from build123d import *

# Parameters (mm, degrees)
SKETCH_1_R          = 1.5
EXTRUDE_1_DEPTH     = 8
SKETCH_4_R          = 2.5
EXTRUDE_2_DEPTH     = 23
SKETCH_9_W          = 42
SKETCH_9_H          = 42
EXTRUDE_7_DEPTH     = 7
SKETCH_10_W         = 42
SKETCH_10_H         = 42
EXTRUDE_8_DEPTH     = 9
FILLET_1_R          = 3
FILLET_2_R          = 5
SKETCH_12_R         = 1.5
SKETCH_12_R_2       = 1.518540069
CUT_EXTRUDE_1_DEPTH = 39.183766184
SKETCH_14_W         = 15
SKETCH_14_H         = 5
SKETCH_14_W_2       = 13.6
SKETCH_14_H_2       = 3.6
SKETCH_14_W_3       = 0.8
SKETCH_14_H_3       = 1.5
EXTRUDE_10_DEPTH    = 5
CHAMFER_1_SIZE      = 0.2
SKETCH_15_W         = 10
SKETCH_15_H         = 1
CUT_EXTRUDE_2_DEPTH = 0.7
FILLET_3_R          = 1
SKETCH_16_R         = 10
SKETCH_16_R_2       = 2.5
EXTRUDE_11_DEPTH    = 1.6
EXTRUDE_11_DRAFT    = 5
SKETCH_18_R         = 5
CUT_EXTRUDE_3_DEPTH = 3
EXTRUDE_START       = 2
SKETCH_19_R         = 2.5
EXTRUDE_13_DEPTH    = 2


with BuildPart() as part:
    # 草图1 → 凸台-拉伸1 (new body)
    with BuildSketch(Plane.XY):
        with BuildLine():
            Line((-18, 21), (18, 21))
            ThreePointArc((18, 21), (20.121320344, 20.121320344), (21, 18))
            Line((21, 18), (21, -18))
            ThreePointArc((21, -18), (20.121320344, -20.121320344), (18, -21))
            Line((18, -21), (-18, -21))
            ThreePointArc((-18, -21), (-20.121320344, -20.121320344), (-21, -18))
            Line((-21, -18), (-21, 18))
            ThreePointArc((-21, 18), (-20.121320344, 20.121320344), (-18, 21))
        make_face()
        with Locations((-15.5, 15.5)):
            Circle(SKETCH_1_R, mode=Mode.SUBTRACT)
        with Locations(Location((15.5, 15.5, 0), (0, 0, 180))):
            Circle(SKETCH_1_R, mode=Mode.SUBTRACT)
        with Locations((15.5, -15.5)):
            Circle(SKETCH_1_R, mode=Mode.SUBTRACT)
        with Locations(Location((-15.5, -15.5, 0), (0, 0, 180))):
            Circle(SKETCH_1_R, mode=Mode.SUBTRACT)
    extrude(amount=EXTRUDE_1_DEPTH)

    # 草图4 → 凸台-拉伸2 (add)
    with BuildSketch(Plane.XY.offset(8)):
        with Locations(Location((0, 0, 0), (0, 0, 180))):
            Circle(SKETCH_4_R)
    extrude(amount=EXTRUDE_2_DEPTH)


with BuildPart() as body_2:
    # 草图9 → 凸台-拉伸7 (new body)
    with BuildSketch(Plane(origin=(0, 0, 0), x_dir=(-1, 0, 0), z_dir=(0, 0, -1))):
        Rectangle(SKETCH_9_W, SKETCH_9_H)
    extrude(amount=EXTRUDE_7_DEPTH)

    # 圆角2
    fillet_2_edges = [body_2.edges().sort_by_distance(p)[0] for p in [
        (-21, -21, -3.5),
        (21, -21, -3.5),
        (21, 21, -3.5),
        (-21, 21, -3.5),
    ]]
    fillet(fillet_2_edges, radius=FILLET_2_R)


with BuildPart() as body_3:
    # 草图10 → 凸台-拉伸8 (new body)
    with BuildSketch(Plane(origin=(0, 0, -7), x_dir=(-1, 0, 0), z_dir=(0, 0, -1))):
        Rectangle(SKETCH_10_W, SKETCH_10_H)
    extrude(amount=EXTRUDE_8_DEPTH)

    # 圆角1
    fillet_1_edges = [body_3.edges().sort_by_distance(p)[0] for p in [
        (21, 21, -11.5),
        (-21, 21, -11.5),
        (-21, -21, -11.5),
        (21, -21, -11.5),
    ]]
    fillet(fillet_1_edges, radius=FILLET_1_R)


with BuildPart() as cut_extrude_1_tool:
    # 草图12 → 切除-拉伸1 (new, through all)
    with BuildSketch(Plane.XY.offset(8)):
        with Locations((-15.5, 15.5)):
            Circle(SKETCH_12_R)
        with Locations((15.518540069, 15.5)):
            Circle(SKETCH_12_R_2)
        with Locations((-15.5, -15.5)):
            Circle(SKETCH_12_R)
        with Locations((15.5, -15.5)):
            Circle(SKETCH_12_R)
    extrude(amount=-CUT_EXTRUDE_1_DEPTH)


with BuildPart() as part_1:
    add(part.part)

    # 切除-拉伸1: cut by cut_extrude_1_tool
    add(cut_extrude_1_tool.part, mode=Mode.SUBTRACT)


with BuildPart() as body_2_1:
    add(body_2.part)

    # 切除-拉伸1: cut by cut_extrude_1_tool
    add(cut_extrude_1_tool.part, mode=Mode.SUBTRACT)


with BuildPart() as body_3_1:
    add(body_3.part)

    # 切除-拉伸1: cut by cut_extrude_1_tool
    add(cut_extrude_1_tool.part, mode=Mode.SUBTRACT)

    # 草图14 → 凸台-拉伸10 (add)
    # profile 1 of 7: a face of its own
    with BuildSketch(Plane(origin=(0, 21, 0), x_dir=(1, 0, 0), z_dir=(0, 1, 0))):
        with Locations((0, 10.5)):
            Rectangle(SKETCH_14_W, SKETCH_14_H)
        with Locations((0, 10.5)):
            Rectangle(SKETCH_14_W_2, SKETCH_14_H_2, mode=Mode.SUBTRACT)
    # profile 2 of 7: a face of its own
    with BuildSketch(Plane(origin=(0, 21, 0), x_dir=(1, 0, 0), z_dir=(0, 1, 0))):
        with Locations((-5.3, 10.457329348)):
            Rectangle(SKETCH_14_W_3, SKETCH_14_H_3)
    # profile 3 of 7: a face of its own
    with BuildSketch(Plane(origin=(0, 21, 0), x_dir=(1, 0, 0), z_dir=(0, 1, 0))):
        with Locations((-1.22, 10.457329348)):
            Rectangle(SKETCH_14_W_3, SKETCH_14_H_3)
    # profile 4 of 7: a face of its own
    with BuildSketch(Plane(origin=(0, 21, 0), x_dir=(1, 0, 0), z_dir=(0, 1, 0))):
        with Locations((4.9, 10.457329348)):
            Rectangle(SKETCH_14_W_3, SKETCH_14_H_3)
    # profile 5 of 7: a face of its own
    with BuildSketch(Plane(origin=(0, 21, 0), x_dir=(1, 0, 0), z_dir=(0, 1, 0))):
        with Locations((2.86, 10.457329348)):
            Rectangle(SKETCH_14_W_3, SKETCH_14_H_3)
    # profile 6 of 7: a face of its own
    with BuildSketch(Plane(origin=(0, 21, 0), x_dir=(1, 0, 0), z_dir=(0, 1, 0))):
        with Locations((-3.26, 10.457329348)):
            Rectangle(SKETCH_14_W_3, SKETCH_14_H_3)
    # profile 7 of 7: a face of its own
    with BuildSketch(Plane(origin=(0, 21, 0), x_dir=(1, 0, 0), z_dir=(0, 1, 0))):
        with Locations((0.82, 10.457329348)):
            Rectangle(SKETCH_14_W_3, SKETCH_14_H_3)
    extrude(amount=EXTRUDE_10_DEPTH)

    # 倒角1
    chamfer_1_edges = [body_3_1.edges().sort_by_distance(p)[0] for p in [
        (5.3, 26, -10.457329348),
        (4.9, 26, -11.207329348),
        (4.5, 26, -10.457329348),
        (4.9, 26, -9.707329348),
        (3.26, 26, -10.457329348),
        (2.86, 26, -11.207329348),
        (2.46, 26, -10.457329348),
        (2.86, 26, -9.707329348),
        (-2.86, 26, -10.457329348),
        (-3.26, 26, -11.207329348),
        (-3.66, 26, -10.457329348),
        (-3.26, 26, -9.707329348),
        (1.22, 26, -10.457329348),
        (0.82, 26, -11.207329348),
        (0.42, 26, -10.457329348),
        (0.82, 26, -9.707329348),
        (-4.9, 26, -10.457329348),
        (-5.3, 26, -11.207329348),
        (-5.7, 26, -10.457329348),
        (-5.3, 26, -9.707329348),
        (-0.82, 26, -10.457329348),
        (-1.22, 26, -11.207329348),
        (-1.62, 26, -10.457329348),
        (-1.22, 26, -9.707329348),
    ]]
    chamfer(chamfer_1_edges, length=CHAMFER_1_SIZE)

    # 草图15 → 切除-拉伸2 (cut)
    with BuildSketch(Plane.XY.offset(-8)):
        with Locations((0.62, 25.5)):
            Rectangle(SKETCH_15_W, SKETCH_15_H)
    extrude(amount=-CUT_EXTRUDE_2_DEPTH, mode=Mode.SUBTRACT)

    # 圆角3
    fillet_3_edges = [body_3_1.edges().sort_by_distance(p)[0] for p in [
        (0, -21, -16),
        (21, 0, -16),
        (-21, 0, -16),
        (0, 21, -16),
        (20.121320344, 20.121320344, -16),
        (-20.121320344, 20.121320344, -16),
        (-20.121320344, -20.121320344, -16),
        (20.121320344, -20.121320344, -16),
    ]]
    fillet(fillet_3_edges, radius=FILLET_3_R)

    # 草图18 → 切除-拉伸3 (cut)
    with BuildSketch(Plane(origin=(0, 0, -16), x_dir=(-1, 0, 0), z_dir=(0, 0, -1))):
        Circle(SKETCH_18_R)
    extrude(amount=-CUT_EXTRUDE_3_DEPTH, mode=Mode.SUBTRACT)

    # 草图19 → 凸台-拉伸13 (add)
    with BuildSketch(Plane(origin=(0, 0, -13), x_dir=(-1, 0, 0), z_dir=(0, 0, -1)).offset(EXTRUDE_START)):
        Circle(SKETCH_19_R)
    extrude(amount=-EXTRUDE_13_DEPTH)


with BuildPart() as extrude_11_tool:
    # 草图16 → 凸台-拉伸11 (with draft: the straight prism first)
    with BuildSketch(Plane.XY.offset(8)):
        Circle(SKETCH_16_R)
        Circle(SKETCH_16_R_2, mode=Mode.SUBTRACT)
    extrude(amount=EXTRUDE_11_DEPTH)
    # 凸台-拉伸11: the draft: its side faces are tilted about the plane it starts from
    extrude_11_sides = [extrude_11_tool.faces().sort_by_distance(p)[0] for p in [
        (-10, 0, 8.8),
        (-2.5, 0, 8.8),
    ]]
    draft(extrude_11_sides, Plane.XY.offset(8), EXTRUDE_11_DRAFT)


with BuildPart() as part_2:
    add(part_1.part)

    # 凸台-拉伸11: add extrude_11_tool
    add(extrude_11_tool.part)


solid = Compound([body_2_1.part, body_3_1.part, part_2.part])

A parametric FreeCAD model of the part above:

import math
import FreeCAD as App
import Part
import Sketcher
from FreeCAD import Vector
Q = App.Units.Quantity


def edges_at(feature, points):
    """Names of the edges that pass closest to the given points."""
    edges = feature.Shape.Edges
    near = lambda p: min(range(len(edges)), key=lambda i: edges[i].distToShape(Part.Vertex(*p))[0])
    return sorted({f"Edge{near(p) + 1}" for p in points})


def faces_at(feature, points):
    """Names of the faces that lie closest to the given points."""
    faces = feature.Shape.Faces
    near = lambda p: min(range(len(faces)), key=lambda i: faces[i].distToShape(Part.Vertex(*p))[0])
    return sorted({f"Face{near(p) + 1}" for p in points})

doc = App.newDocument("Part")
body = doc.addObject("PartDesign::Body", "Body")

# Sketch on XY plane
sketch1 = body.newObject("Sketcher::SketchObject", "Sketch")
sketch1.AttachmentSupport = (doc.getObject("XY_Plane"), [""])
sketch1.MapMode = "FlatFace"
sketch1.addGeometry(Part.LineSegment(Vector(18, 21, 0), Vector(-18, 21, 0)), False)
sketch1.addGeometry(Part.ArcOfCircle(Part.Circle(Vector(-18, 18, 0), Vector(0, 0, 1), 3), math.radians(90), math.radians(180)), False)
sketch1.addGeometry(Part.LineSegment(Vector(-21, 18, 0), Vector(-21, -18, 0)), False)
sketch1.addGeometry(Part.ArcOfCircle(Part.Circle(Vector(-18, -18, 0), Vector(0, 0, 1), 3), math.radians(180), math.radians(270)), False)
sketch1.addGeometry(Part.LineSegment(Vector(-18, -21, 0), Vector(18, -21, 0)), False)
sketch1.addGeometry(Part.ArcOfCircle(Part.Circle(Vector(18, -18, 0), Vector(0, 0, 1), 3), math.radians(-90), math.radians(0)), False)
sketch1.addGeometry(Part.LineSegment(Vector(21, -18, 0), Vector(21, 18, 0)), False)
sketch1.addGeometry(Part.ArcOfCircle(Part.Circle(Vector(18, 18, 0), Vector(0, 0, 1), 3), math.radians(0), math.radians(90)), False)
sketch1.addGeometry(Part.Circle(Vector(15.5, -15.5, 0), Vector(0, 0, 1), 1.5), False)
sketch1.addGeometry(Part.Circle(Vector(-15.5, -15.5, 0), Vector(0, 0, 1), 1.5), False)
sketch1.addGeometry(Part.Circle(Vector(15.5, 15.5, 0), Vector(0, 0, 1), 1.5), False)
sketch1.addGeometry(Part.Circle(Vector(-15.5, 15.5, 0), Vector(0, 0, 1), 1.5), False)
sketch1.addConstraint(Sketcher.Constraint("Tangent", 0, 2, 1, 1))
sketch1.addConstraint(Sketcher.Constraint("Tangent", 1, 2, 2, 1))
sketch1.addConstraint(Sketcher.Constraint("Tangent", 2, 2, 3, 1))
sketch1.addConstraint(Sketcher.Constraint("Tangent", 3, 2, 4, 1))
sketch1.addConstraint(Sketcher.Constraint("Tangent", 4, 2, 5, 1))
sketch1.addConstraint(Sketcher.Constraint("Tangent", 5, 2, 6, 1))
sketch1.addConstraint(Sketcher.Constraint("Tangent", 6, 2, 7, 1))
sketch1.addConstraint(Sketcher.Constraint("Tangent", 7, 2, 0, 1))
sketch1.addConstraint(Sketcher.Constraint("Horizontal", 0))
sketch1.addConstraint(Sketcher.Constraint("Vertical", 2))
sketch1.addConstraint(Sketcher.Constraint("Horizontal", 4))
sketch1.addConstraint(Sketcher.Constraint("Vertical", 6))
sketch1.addConstraint(Sketcher.Constraint("Equal", 1, 3))
sketch1.addConstraint(Sketcher.Constraint("Equal", 3, 5))
sketch1.addConstraint(Sketcher.Constraint("Equal", 5, 7))
sketch1.addConstraint(Sketcher.Constraint("Equal", 8, 9))
sketch1.addConstraint(Sketcher.Constraint("Equal", 9, 10))
sketch1.addConstraint(Sketcher.Constraint("Equal", 10, 11))
sketch1.addConstraint(Sketcher.Constraint("Symmetric", 1, 3, 5, 3, -1, 1))
sketch1.addConstraint(Sketcher.Constraint("Symmetric", 9, 3, 10, 3, -1, 1))
sketch1.addConstraint(Sketcher.Constraint("Symmetric", 8, 3, 11, 3, -1, 1))
sketch1.addConstraint(Sketcher.Constraint("Symmetric", 8, 3, 9, 3, -2))
sketch1.addConstraint(Sketcher.Constraint("Equal", 4, 2))
sketch1.addConstraint(Sketcher.Constraint("Diameter", 8, Q("3 mm")))
sketch1.addConstraint(Sketcher.Constraint("Radius", 1, Q("3 mm")))
sketch1.addConstraint(Sketcher.Constraint("DistanceX", 0, 2, 0, 1, Q("36 mm")))
sketch1.addConstraint(Sketcher.Constraint("DistanceX", 9, 3, 8, 3, Q("31 mm")))
sketch1.addConstraint(Sketcher.Constraint("DistanceY", 8, 3, 10, 3, Q("31 mm")))
pad1 = body.newObject("PartDesign::Pad", "Pad")
pad1.Profile = sketch1
pad1.Length = 8

# Sketch on XY plane
sketch2 = body.newObject("Sketcher::SketchObject", "Sketch001")
sketch2.AttachmentSupport = (doc.getObject("XY_Plane"), [""])
sketch2.MapMode = "FlatFace"
sketch2.AttachmentOffset = App.Placement(Vector(0, 0, 8), App.Rotation())
sketch2.addGeometry(Part.Circle(Vector(0, 0, 0), Vector(0, 0, 1), 2.5), False)
sketch2.addConstraint(Sketcher.Constraint("Coincident", 0, 3, -1, 1))
sketch2.addConstraint(Sketcher.Constraint("Diameter", 0, Q("5 mm")))
pad2 = body.newObject("PartDesign::Pad", "Pad001")
pad2.Profile = sketch2
pad2.Length = 23
body2 = doc.addObject("PartDesign::Body", "Body001")

# Sketch on XY plane
sketch3 = body2.newObject("Sketcher::SketchObject", "Sketch002")
sketch3.AttachmentSupport = (doc.getObject("XY_Plane001"), [""])
sketch3.MapMode = "FlatFace"
sketch3.addGeometry(Part.LineSegment(Vector(21, 21, 0), Vector(21, -21, 0)), False)
sketch3.addGeometry(Part.LineSegment(Vector(21, -21, 0), Vector(-21, -21, 0)), False)
sketch3.addGeometry(Part.LineSegment(Vector(-21, -21, 0), Vector(-21, 21, 0)), False)
sketch3.addGeometry(Part.LineSegment(Vector(-21, 21, 0), Vector(21, 21, 0)), False)
sketch3.addConstraint(Sketcher.Constraint("Coincident", 0, 2, 1, 1))
sketch3.addConstraint(Sketcher.Constraint("Coincident", 1, 2, 2, 1))
sketch3.addConstraint(Sketcher.Constraint("Coincident", 2, 2, 3, 1))
sketch3.addConstraint(Sketcher.Constraint("Coincident", 3, 2, 0, 1))
sketch3.addConstraint(Sketcher.Constraint("Vertical", 0))
sketch3.addConstraint(Sketcher.Constraint("Horizontal", 1))
sketch3.addConstraint(Sketcher.Constraint("Vertical", 2))
sketch3.addConstraint(Sketcher.Constraint("Horizontal", 3))
sketch3.addConstraint(Sketcher.Constraint("Symmetric", 0, 2, 2, 2, -1, 1))
sketch3.addConstraint(Sketcher.Constraint("Equal", 3, 0))
sketch3.addConstraint(Sketcher.Constraint("DistanceX", 1, 2, 1, 1, Q("42 mm")))
pad3 = body2.newObject("PartDesign::Pad", "Pad002")
pad3.Profile = sketch3
pad3.Length = 7
pad3.Reversed = True
doc.recompute()

fillet = body2.newObject("PartDesign::Fillet", "Fillet")
fillet.Base = (pad3, edges_at(pad3, [
    (-21, -21, -3.5),
    (21, -21, -3.5),
    (21, 21, -3.5),
    (-21, 21, -3.5),
]))
fillet.Radius = 5
body3 = doc.addObject("PartDesign::Body", "Body002")

# Sketch on XY plane
sketch4 = body3.newObject("Sketcher::SketchObject", "Sketch003")
sketch4.AttachmentSupport = (doc.getObject("XY_Plane002"), [""])
sketch4.MapMode = "FlatFace"
sketch4.AttachmentOffset = App.Placement(Vector(0, 0, -7), App.Rotation())
sketch4.addGeometry(Part.LineSegment(Vector(21, 21, 0), Vector(21, -21, 0)), False)
sketch4.addGeometry(Part.LineSegment(Vector(21, -21, 0), Vector(-21, -21, 0)), False)
sketch4.addGeometry(Part.LineSegment(Vector(-21, -21, 0), Vector(-21, 21, 0)), False)
sketch4.addGeometry(Part.LineSegment(Vector(-21, 21, 0), Vector(21, 21, 0)), False)
sketch4.addConstraint(Sketcher.Constraint("Coincident", 0, 2, 1, 1))
sketch4.addConstraint(Sketcher.Constraint("Coincident", 1, 2, 2, 1))
sketch4.addConstraint(Sketcher.Constraint("Coincident", 2, 2, 3, 1))
sketch4.addConstraint(Sketcher.Constraint("Coincident", 3, 2, 0, 1))
sketch4.addConstraint(Sketcher.Constraint("Vertical", 0))
sketch4.addConstraint(Sketcher.Constraint("Horizontal", 1))
sketch4.addConstraint(Sketcher.Constraint("Vertical", 2))
sketch4.addConstraint(Sketcher.Constraint("Horizontal", 3))
sketch4.addConstraint(Sketcher.Constraint("Symmetric", 0, 2, 2, 2, -1, 1))
sketch4.addConstraint(Sketcher.Constraint("Equal", 3, 0))
sketch4.addConstraint(Sketcher.Constraint("DistanceX", 1, 2, 1, 1, Q("42 mm")))
pad4 = body3.newObject("PartDesign::Pad", "Pad003")
pad4.Profile = sketch4
pad4.Length = 9
pad4.Reversed = True
doc.recompute()

fillet2 = body3.newObject("PartDesign::Fillet", "Fillet001")
fillet2.Base = (pad4, edges_at(pad4, [
    (21, 21, -11.5),
    (-21, 21, -11.5),
    (-21, -21, -11.5),
    (21, -21, -11.5),
]))
fillet2.Radius = 3
body4 = doc.addObject("PartDesign::Body", "Body003")
body4.AllowCompound = True

# Sketch on XY plane
sketch5 = body4.newObject("Sketcher::SketchObject", "Sketch004")
sketch5.AttachmentSupport = (doc.getObject("XY_Plane003"), [""])
sketch5.MapMode = "FlatFace"
sketch5.AttachmentOffset = App.Placement(Vector(0, 0, 8), App.Rotation())
sketch5.addGeometry(Part.Circle(Vector(-15.5, 15.5, 0), Vector(0, 0, 1), 1.5), False)
sketch5.addGeometry(Part.Circle(Vector(15.5, 15.5, 0), Vector(0, 0, 1), 1.5), False)
sketch5.addGeometry(Part.Circle(Vector(-15.5, -15.5, 0), Vector(0, 0, 1), 1.5), False)
sketch5.addGeometry(Part.Circle(Vector(15.5, -15.5, 0), Vector(0, 0, 1), 1.5), False)
sketch5.addConstraint(Sketcher.Constraint("Equal", 0, 2))
sketch5.addConstraint(Sketcher.Constraint("Equal", 2, 3))
sketch5.addConstraint(Sketcher.Constraint("Symmetric", 0, 3, 3, 3, -1, 1))
sketch5.addConstraint(Sketcher.Constraint("Symmetric", 2, 3, 3, 3, -2))
sketch5.addConstraint(Sketcher.Constraint("Horizontal", 0, 3, 1, 3))
sketch5.addConstraint(Sketcher.Constraint("Diameter", 0, Q("3 mm")))
sketch5.addConstraint(Sketcher.Constraint("DistanceY", 2, 3, 0, 3, Q("31 mm")))
sketch5.addConstraint(Sketcher.Constraint("DistanceX", 2, 3, 3, 3, Q("31 mm")))
sketch5.addConstraint(Sketcher.Constraint("Diameter", 1, Q("3.03708 mm")))
sketch5.addConstraint(Sketcher.Constraint("DistanceX", -1, 1, 1, 3, Q("15.51854 mm")))
pad5 = body4.newObject("PartDesign::Pad", "Pad004")
pad5.Profile = sketch5
pad5.Length = 39.183766
pad5.Reversed = True
doc.recompute()

body5 = doc.addObject("PartDesign::Body", "Body004")
body5.BaseFeature = body4
boolean = body.newObject("PartDesign::Boolean", "Boolean")
boolean.Type = "Cut"
boolean.addObjects([body5])
doc.recompute()

body6 = doc.addObject("PartDesign::Body", "Body005")
body6.BaseFeature = body4
boolean2 = body2.newObject("PartDesign::Boolean", "Boolean001")
boolean2.Type = "Cut"
boolean2.addObjects([body6])
doc.recompute()

boolean3 = body3.newObject("PartDesign::Boolean", "Boolean002")
boolean3.Type = "Cut"
boolean3.addObjects([body4])

# Sketch on XZ plane
sketch6 = body3.newObject("Sketcher::SketchObject", "Sketch005")
sketch6.AttachmentSupport = (doc.getObject("XZ_Plane002"), [""])
sketch6.MapMode = "FlatFace"
sketch6.AttachmentOffset = App.Placement(Vector(0, 0, -21), App.Rotation())
sketch6.addGeometry(Part.LineSegment(Vector(-7.5, -13, 0), Vector(-7.5, -8, 0)), False)
sketch6.addGeometry(Part.LineSegment(Vector(-7.5, -8, 0), Vector(7.5, -8, 0)), False)
sketch6.addGeometry(Part.LineSegment(Vector(7.5, -8, 0), Vector(7.5, -13, 0)), False)
sketch6.addGeometry(Part.LineSegment(Vector(7.5, -13, 0), Vector(-7.5, -13, 0)), False)
sketch6.addGeometry(Part.LineSegment(Vector(6.8, -8.7, 0), Vector(-6.8, -8.7, 0)), False)
sketch6.addGeometry(Part.LineSegment(Vector(-6.8, -8.7, 0), Vector(-6.8, -12.3, 0)), False)
sketch6.addGeometry(Part.LineSegment(Vector(-6.8, -12.3, 0), Vector(6.8, -12.3, 0)), False)
sketch6.addGeometry(Part.LineSegment(Vector(6.8, -12.3, 0), Vector(6.8, -8.7, 0)), False)
sketch6.addGeometry(Part.LineSegment(Vector(-5.7, -11.2, 0), Vector(-5.7, -9.7, 0)), False)
sketch6.addGeometry(Part.LineSegment(Vector(-5.7, -9.7, 0), Vector(-4.9, -9.7, 0)), False)
sketch6.addGeometry(Part.LineSegment(Vector(-4.9, -9.7, 0), Vector(-4.9, -11.2, 0)), False)
sketch6.addGeometry(Part.LineSegment(Vector(-4.9, -11.2, 0), Vector(-5.7, -11.2, 0)), False)
sketch6.addGeometry(Part.LineSegment(Vector(-1.6, -11.2, 0), Vector(-1.6, -9.7, 0)), False)
sketch6.addGeometry(Part.LineSegment(Vector(-1.6, -9.7, 0), Vector(-0.8, -9.7, 0)), False)
sketch6.addGeometry(Part.LineSegment(Vector(-0.8, -9.7, 0), Vector(-0.8, -11.2, 0)), False)
sketch6.addGeometry(Part.LineSegment(Vector(-0.8, -11.2, 0), Vector(-1.6, -11.2, 0)), False)
sketch6.addGeometry(Part.LineSegment(Vector(4.5, -11.2, 0), Vector(4.5, -9.7, 0)), False)
sketch6.addGeometry(Part.LineSegment(Vector(4.5, -9.7, 0), Vector(5.3, -9.7, 0)), False)
sketch6.addGeometry(Part.LineSegment(Vector(5.3, -9.7, 0), Vector(5.3, -11.2, 0)), False)
sketch6.addGeometry(Part.LineSegment(Vector(5.3, -11.2, 0), Vector(4.5, -11.2, 0)), False)
sketch6.addGeometry(Part.LineSegment(Vector(2.5, -11.2, 0), Vector(2.5, -9.7, 0)), False)
sketch6.addGeometry(Part.LineSegment(Vector(2.5, -9.7, 0), Vector(3.3, -9.7, 0)), False)
sketch6.addGeometry(Part.LineSegment(Vector(3.3, -9.7, 0), Vector(3.3, -11.2, 0)), False)
sketch6.addGeometry(Part.LineSegment(Vector(3.3, -11.2, 0), Vector(2.5, -11.2, 0)), False)
sketch6.addGeometry(Part.LineSegment(Vector(-3.7, -11.2, 0), Vector(-3.7, -9.7, 0)), False)
sketch6.addGeometry(Part.LineSegment(Vector(-3.7, -9.7, 0), Vector(-2.9, -9.7, 0)), False)
sketch6.addGeometry(Part.LineSegment(Vector(-2.9, -9.7, 0), Vector(-2.9, -11.2, 0)), False)
sketch6.addGeometry(Part.LineSegment(Vector(-2.9, -11.2, 0), Vector(-3.7, -11.2, 0)), False)
sketch6.addGeometry(Part.LineSegment(Vector(0.4, -11.2, 0), Vector(0.4, -9.7, 0)), False)
sketch6.addGeometry(Part.LineSegment(Vector(0.4, -9.7, 0), Vector(1.2, -9.7, 0)), False)
sketch6.addGeometry(Part.LineSegment(Vector(1.2, -9.7, 0), Vector(1.2, -11.2, 0)), False)
sketch6.addGeometry(Part.LineSegment(Vector(1.2, -11.2, 0), Vector(0.4, -11.2, 0)), False)
sketch6.addConstraint(Sketcher.Constraint("Coincident", 0, 2, 1, 1))
sketch6.addConstraint(Sketcher.Constraint("Coincident", 1, 2, 2, 1))
sketch6.addConstraint(Sketcher.Constraint("Coincident", 2, 2, 3, 1))
sketch6.addConstraint(Sketcher.Constraint("Coincident", 3, 2, 0, 1))
sketch6.addConstraint(Sketcher.Constraint("Coincident", 4, 2, 5, 1))
sketch6.addConstraint(Sketcher.Constraint("Coincident", 5, 2, 6, 1))
sketch6.addConstraint(Sketcher.Constraint("Coincident", 6, 2, 7, 1))
sketch6.addConstraint(Sketcher.Constraint("Coincident", 7, 2, 4, 1))
sketch6.addConstraint(Sketcher.Constraint("Coincident", 8, 2, 9, 1))
sketch6.addConstraint(Sketcher.Constraint("Coincident", 9, 2, 10, 1))
sketch6.addConstraint(Sketcher.Constraint("Coincident", 10, 2, 11, 1))
sketch6.addConstraint(Sketcher.Constraint("Coincident", 11, 2, 8, 1))
sketch6.addConstraint(Sketcher.Constraint("Coincident", 12, 2, 13, 1))
sketch6.addConstraint(Sketcher.Constraint("Coincident", 13, 2, 14, 1))
sketch6.addConstraint(Sketcher.Constraint("Coincident", 14, 2, 15, 1))
sketch6.addConstraint(Sketcher.Constraint("Coincident", 15, 2, 12, 1))
sketch6.addConstraint(Sketcher.Constraint("Coincident", 16, 2, 17, 1))
sketch6.addConstraint(Sketcher.Constraint("Coincident", 17, 2, 18, 1))
sketch6.addConstraint(Sketcher.Constraint("Coincident", 18, 2, 19, 1))
sketch6.addConstraint(Sketcher.Constraint("Coincident", 19, 2, 16, 1))
sketch6.addConstraint(Sketcher.Constraint("Coincident", 20, 2, 21, 1))
sketch6.addConstraint(Sketcher.Constraint("Coincident", 21, 2, 22, 1))
sketch6.addConstraint(Sketcher.Constraint("Coincident", 22, 2, 23, 1))
sketch6.addConstraint(Sketcher.Constraint("Coincident", 23, 2, 20, 1))
sketch6.addConstraint(Sketcher.Constraint("Coincident", 24, 2, 25, 1))
sketch6.addConstraint(Sketcher.Constraint("Coincident", 25, 2, 26, 1))
sketch6.addConstraint(Sketcher.Constraint("Coincident", 26, 2, 27, 1))
sketch6.addConstraint(Sketcher.Constraint("Coincident", 27, 2, 24, 1))
sketch6.addConstraint(Sketcher.Constraint("Coincident", 28, 2, 29, 1))
sketch6.addConstraint(Sketcher.Constraint("Coincident", 29, 2, 30, 1))
sketch6.addConstraint(Sketcher.Constraint("Coincident", 30, 2, 31, 1))
sketch6.addConstraint(Sketcher.Constraint("Coincident", 31, 2, 28, 1))
sketch6.addConstraint(Sketcher.Constraint("Vertical", 0))
sketch6.addConstraint(Sketcher.Constraint("Horizontal", 1))
sketch6.addConstraint(Sketcher.Constraint("Vertical", 2))
sketch6.addConstraint(Sketcher.Constraint("Horizontal", 3))
sketch6.addConstraint(Sketcher.Constraint("Horizontal", 4))
sketch6.addConstraint(Sketcher.Constraint("Vertical", 5))
sketch6.addConstraint(Sketcher.Constraint("Horizontal", 6))
sketch6.addConstraint(Sketcher.Constraint("Vertical", 7))
sketch6.addConstraint(Sketcher.Constraint("Vertical", 8))
sketch6.addConstraint(Sketcher.Constraint("Horizontal", 9))
sketch6.addConstraint(Sketcher.Constraint("Vertical", 10))
sketch6.addConstraint(Sketcher.Constraint("Horizontal", 11))
sketch6.addConstraint(Sketcher.Constraint("Vertical", 12))
sketch6.addConstraint(Sketcher.Constraint("Horizontal", 13))
sketch6.addConstraint(Sketcher.Constraint("Vertical", 14))
sketch6.addConstraint(Sketcher.Constraint("Horizontal", 15))
sketch6.addConstraint(Sketcher.Constraint("Vertical", 16))
sketch6.addConstraint(Sketcher.Constraint("Horizontal", 17))
sketch6.addConstraint(Sketcher.Constraint("Vertical", 18))
sketch6.addConstraint(Sketcher.Constraint("Horizontal", 19))
sketch6.addConstraint(Sketcher.Constraint("Vertical", 20))
sketch6.addConstraint(Sketcher.Constraint("Horizontal", 21))
sketch6.addConstraint(Sketcher.Constraint("Vertical", 22))
sketch6.addConstraint(Sketcher.Constraint("Horizontal", 23))
sketch6.addConstraint(Sketcher.Constraint("Vertical", 24))
sketch6.addConstraint(Sketcher.Constraint("Horizontal", 25))
sketch6.addConstraint(Sketcher.Constraint("Vertical", 26))
sketch6.addConstraint(Sketcher.Constraint("Horizontal", 27))
sketch6.addConstraint(Sketcher.Constraint("Vertical", 28))
sketch6.addConstraint(Sketcher.Constraint("Horizontal", 29))
sketch6.addConstraint(Sketcher.Constraint("Vertical", 30))
sketch6.addConstraint(Sketcher.Constraint("Horizontal", 31))
sketch6.addConstraint(Sketcher.Constraint("Horizontal", 9, 2, 12, 2))
sketch6.addConstraint(Sketcher.Constraint("Horizontal", 11, 2, 14, 2))
sketch6.addConstraint(Sketcher.Constraint("Horizontal", 13, 2, 16, 2))
sketch6.addConstraint(Sketcher.Constraint("Horizontal", 15, 2, 18, 2))
sketch6.addConstraint(Sketcher.Constraint("Horizontal", 17, 2, 20, 2))
sketch6.addConstraint(Sketcher.Constraint("Horizontal", 19, 2, 22, 2))
sketch6.addConstraint(Sketcher.Constraint("Horizontal", 21, 2, 24, 2))
sketch6.addConstraint(Sketcher.Constraint("Horizontal", 23, 2, 26, 2))
sketch6.addConstraint(Sketcher.Constraint("Horizontal", 25, 2, 28, 2))
sketch6.addConstraint(Sketcher.Constraint("Horizontal", 27, 2, 30, 2))
sketch6.addConstraint(Sketcher.Constraint("Equal", 11, 13))
sketch6.addConstraint(Sketcher.Constraint("Equal", 15, 17))
sketch6.addConstraint(Sketcher.Constraint("Equal", 19, 21))
sketch6.addConstraint(Sketcher.Constraint("Equal", 23, 25))
sketch6.addConstraint(Sketcher.Constraint("Equal", 27, 29))
sketch6.addConstraint(Sketcher.Constraint("DistanceX", 1, 1, 1, 2, Q("15 mm")))
sketch6.addConstraint(Sketcher.Constraint("DistanceY", 0, 1, 0, 2, Q("5 mm")))
sketch6.addConstraint(Sketcher.Constraint("DistanceX", 4, 2, 4, 1, Q("13.6 mm")))
sketch6.addConstraint(Sketcher.Constraint("DistanceX", 9, 1, 9, 2, Q("0.8 mm")))
sketch6.addConstraint(Sketcher.Constraint("DistanceY", 5, 2, 5, 1, Q("3.6 mm")))
sketch6.addConstraint(Sketcher.Constraint("DistanceY", 8, 1, 8, 2, Q("1.5 mm")))
sketch6.addConstraint(Sketcher.Constraint("DistanceY", 0, 2, -1, 1, Q("8 mm")))
sketch6.addConstraint(Sketcher.Constraint("DistanceX", 16, 2, 1, 2, Q("3 mm")))
sketch6.addConstraint(Sketcher.Constraint("DistanceX", 0, 2, -1, 1, Q("7.5 mm")))
sketch6.addConstraint(Sketcher.Constraint("DistanceX", 4, 2, -1, 1, Q("6.8 mm")))
sketch6.addConstraint(Sketcher.Constraint("DistanceY", 4, 2, -1, 1, Q("8.7 mm")))
sketch6.addConstraint(Sketcher.Constraint("DistanceX", 8, 2, -1, 1, Q("5.7 mm")))
sketch6.addConstraint(Sketcher.Constraint("DistanceX", 12, 2, -1, 1, Q("1.62 mm")))
sketch6.addConstraint(Sketcher.Constraint("DistanceX", -1, 1, 20, 2, Q("2.46 mm")))
sketch6.addConstraint(Sketcher.Constraint("DistanceX", 24, 2, -1, 1, Q("3.66 mm")))
sketch6.addConstraint(Sketcher.Constraint("DistanceX", -1, 1, 28, 2, Q("0.42 mm")))
sketch6.addConstraint(Sketcher.Constraint("DistanceY", 8, 2, -1, 1, Q("9.707329 mm")))
pad6 = body3.newObject("PartDesign::Pad", "Pad005")
pad6.Profile = sketch6
pad6.Length = 5
pad6.Reversed = True
doc.recompute()

chamfer = body3.newObject("PartDesign::Chamfer", "Chamfer")
chamfer.Base = (pad6, edges_at(pad6, [
    (5.3, 26, -10.457),
    (4.9, 26, -11.207),
    (4.5, 26, -10.457),
    (4.9, 26, -9.707),
    (3.26, 26, -10.457),
    (2.86, 26, -11.207),
    (2.46, 26, -10.457),
    (2.86, 26, -9.707),
    (-2.86, 26, -10.457),
    (-3.26, 26, -11.207),
    (-3.66, 26, -10.457),
    (-3.26, 26, -9.707),
    (1.22, 26, -10.457),
    (0.82, 26, -11.207),
    (0.42, 26, -10.457),
    (0.82, 26, -9.707),
    (-4.9, 26, -10.457),
    (-5.3, 26, -11.207),
    (-5.7, 26, -10.457),
    (-5.3, 26, -9.707),
    (-0.82, 26, -10.457),
    (-1.22, 26, -11.207),
    (-1.62, 26, -10.457),
    (-1.22, 26, -9.707),
]))
chamfer.Size = 0.2

# Sketch on XY plane
sketch7 = body3.newObject("Sketcher::SketchObject", "Sketch006")
sketch7.AttachmentSupport = (doc.getObject("XY_Plane002"), [""])
sketch7.MapMode = "FlatFace"
sketch7.AttachmentOffset = App.Placement(Vector(0, 0, -8), App.Rotation())
sketch7.addGeometry(Part.LineSegment(Vector(-4.4, 26, 0), Vector(-4.4, 25, 0)), False)
sketch7.addGeometry(Part.LineSegment(Vector(-4.4, 25, 0), Vector(5.6, 25, 0)), False)
sketch7.addGeometry(Part.LineSegment(Vector(5.6, 25, 0), Vector(5.6, 26, 0)), False)
sketch7.addGeometry(Part.LineSegment(Vector(5.6, 26, 0), Vector(-4.4, 26, 0)), False)
sketch7.addConstraint(Sketcher.Constraint("Coincident", 0, 2, 1, 1))
sketch7.addConstraint(Sketcher.Constraint("Coincident", 1, 2, 2, 1))
sketch7.addConstraint(Sketcher.Constraint("Coincident", 2, 2, 3, 1))
sketch7.addConstraint(Sketcher.Constraint("Coincident", 3, 2, 0, 1))
sketch7.addConstraint(Sketcher.Constraint("Vertical", 0))
sketch7.addConstraint(Sketcher.Constraint("Horizontal", 1))
sketch7.addConstraint(Sketcher.Constraint("Vertical", 2))
sketch7.addConstraint(Sketcher.Constraint("Horizontal", 3))
sketch7.addConstraint(Sketcher.Constraint("DistanceX", 1, 1, 1, 2, Q("10 mm")))
sketch7.addConstraint(Sketcher.Constraint("DistanceY", 0, 2, 0, 1, Q("1 mm")))
sketch7.addConstraint(Sketcher.Constraint("DistanceY", -1, 1, 0, 2, Q("25 mm")))
sketch7.addConstraint(Sketcher.Constraint("DistanceX", 0, 2, -1, 1, Q("4.38 mm")))
pocket1 = body3.newObject("PartDesign::Pocket", "Pocket")
pocket1.Profile = sketch7
pocket1.Length = 0.7
doc.recompute()

fillet3 = body3.newObject("PartDesign::Fillet", "Fillet002")
fillet3.Base = (pocket1, edges_at(pocket1, [
    (0, -21, -16),
    (21, 0, -16),
    (-21, 0, -16),
    (0, 21, -16),
    (20.121, 20.121, -16),
    (-20.121, 20.121, -16),
    (-20.121, -20.121, -16),
    (20.121, -20.121, -16),
]))
fillet3.Radius = 1

# Sketch on XY plane
sketch8 = body3.newObject("Sketcher::SketchObject", "Sketch007")
sketch8.AttachmentSupport = (doc.getObject("XY_Plane002"), [""])
sketch8.MapMode = "FlatFace"
sketch8.AttachmentOffset = App.Placement(Vector(0, 0, -16), App.Rotation())
sketch8.addGeometry(Part.Circle(Vector(0, 0, 0), Vector(0, 0, 1), 5), False)
sketch8.addConstraint(Sketcher.Constraint("Coincident", 0, 3, -1, 1))
sketch8.addConstraint(Sketcher.Constraint("Diameter", 0, Q("10 mm")))
pocket2 = body3.newObject("PartDesign::Pocket", "Pocket001")
pocket2.Profile = sketch8
pocket2.Length = 3
pocket2.Reversed = True

# Sketch on XY plane
sketch9 = body3.newObject("Sketcher::SketchObject", "Sketch008")
sketch9.AttachmentSupport = (doc.getObject("XY_Plane002"), [""])
sketch9.MapMode = "FlatFace"
sketch9.AttachmentOffset = App.Placement(Vector(0, 0, -15), App.Rotation())
sketch9.addGeometry(Part.Circle(Vector(0, 0, 0), Vector(0, 0, 1), 2.5), False)
sketch9.addConstraint(Sketcher.Constraint("Coincident", 0, 3, -1, 1))
sketch9.addConstraint(Sketcher.Constraint("Diameter", 0, Q("5 mm")))
pad7 = body3.newObject("PartDesign::Pad", "Pad006")
pad7.Profile = sketch9
pad7.Length = 2
body7 = doc.addObject("PartDesign::Body", "Body006")

# Sketch on XY plane
sketch10 = body7.newObject("Sketcher::SketchObject", "Sketch009")
sketch10.AttachmentSupport = (doc.getObject("XY_Plane006"), [""])
sketch10.MapMode = "FlatFace"
sketch10.AttachmentOffset = App.Placement(Vector(0, 0, 8), App.Rotation())
sketch10.addGeometry(Part.Circle(Vector(0, 0, 0), Vector(0, 0, 1), 10), False)
sketch10.addGeometry(Part.Circle(Vector(0, 0, 0), Vector(0, 0, 1), 2.5), False)
sketch10.addConstraint(Sketcher.Constraint("Coincident", 0, 3, -1, 1))
sketch10.addConstraint(Sketcher.Constraint("Coincident", 1, 3, -1, 1))
sketch10.addConstraint(Sketcher.Constraint("Diameter", 0, Q("20 mm")))
sketch10.addConstraint(Sketcher.Constraint("Diameter", 1, Q("5 mm")))
pad8 = body7.newObject("PartDesign::Pad", "Pad007")
pad8.Profile = sketch10
pad8.Length = 1.6
doc.recompute()

datumplane = body7.newObject("PartDesign::Plane", "DatumPlane")
datumplane.AttachmentSupport = (doc.getObject("XY_Plane006"), [""])
datumplane.MapMode = "FlatFace"
datumplane.AttachmentOffset = App.Placement(Vector(0, 0, 8), App.Rotation())
draft = body7.newObject("PartDesign::Draft", "Draft")
draft.Base = (pad8, faces_at(pad8, [(-10, 0, 8.8), (-2.5, 0, 8.8)]))
draft.NeutralPlane = (datumplane, [""])
draft.Angle = 5
draft.Reversed = False
doc.recompute()

boolean4 = body.newObject("PartDesign::Boolean", "Boolean003")
boolean4.Type = "Fuse"
boolean4.addObjects([body7])

doc.recompute()
